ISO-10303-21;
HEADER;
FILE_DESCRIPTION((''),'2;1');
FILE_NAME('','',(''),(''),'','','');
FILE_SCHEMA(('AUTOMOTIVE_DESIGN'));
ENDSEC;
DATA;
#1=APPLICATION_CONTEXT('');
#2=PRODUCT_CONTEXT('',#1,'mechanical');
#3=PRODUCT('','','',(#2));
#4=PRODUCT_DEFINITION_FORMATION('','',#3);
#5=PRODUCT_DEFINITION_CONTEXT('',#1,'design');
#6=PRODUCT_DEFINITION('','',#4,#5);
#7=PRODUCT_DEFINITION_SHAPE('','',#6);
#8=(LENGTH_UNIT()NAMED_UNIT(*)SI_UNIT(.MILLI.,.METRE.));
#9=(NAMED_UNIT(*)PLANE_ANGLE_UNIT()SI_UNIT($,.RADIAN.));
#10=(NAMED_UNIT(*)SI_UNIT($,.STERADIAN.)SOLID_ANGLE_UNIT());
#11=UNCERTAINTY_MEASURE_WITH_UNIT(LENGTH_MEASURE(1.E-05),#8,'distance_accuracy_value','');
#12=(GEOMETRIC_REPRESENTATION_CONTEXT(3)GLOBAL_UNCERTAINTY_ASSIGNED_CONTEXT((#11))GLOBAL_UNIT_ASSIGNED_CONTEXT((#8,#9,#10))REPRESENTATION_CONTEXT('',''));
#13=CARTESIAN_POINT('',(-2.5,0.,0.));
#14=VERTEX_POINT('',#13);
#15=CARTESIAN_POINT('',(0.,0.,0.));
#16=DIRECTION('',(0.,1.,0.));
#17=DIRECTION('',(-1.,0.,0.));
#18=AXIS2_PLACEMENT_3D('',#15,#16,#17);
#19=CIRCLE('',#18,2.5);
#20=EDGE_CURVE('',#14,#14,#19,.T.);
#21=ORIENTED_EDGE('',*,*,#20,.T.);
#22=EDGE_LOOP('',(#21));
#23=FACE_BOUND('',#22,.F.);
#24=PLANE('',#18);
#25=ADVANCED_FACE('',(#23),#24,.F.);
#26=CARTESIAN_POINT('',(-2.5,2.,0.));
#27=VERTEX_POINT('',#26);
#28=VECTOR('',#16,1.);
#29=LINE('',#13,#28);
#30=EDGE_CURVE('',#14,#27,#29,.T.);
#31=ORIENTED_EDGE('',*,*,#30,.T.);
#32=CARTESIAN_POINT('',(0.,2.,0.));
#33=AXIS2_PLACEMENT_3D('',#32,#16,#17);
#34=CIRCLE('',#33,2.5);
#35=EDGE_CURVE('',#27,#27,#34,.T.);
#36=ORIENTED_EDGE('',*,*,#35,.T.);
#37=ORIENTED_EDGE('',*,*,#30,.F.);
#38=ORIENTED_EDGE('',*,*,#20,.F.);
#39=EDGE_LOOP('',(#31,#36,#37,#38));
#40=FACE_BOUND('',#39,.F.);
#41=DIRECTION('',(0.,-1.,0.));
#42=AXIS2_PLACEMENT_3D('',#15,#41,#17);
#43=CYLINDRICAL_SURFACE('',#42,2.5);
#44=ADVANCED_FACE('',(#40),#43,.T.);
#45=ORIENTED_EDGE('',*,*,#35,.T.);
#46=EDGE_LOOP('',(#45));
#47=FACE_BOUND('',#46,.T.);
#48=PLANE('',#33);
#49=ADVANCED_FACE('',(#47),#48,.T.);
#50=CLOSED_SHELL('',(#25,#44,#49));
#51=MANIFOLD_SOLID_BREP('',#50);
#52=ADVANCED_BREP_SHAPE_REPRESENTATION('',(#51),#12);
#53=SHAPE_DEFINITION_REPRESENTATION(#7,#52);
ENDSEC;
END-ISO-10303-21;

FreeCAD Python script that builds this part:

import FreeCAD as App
import Part
import Sketcher

V = App.Vector

doc = App.newDocument("Part")
body = doc.addObject("PartDesign::Body", "Body")

sketch1 = doc.addObject("Sketcher::SketchObject", "Sketch")
body.addObject(sketch1)
sketch1.AttachmentSupport = (doc.XZ_Plane, [""])
sketch1.MapMode = "FlatFace"
sketch1.addGeometry(Part.Circle(V(0, 0, 0), V(0, 0, 1), 2.5), False)
sketch1.addConstraint(Sketcher.Constraint("Coincident", 0, 3, -1, 1))
sketch1.addConstraint(Sketcher.Constraint("Diameter", 0, 5.0))
pad1 = doc.addObject("PartDesign::Pad", "Pad")
body.addObject(pad1)
pad1.Profile = sketch1
pad1.Length = 2
pad1.Reversed = True

doc.recompute()
